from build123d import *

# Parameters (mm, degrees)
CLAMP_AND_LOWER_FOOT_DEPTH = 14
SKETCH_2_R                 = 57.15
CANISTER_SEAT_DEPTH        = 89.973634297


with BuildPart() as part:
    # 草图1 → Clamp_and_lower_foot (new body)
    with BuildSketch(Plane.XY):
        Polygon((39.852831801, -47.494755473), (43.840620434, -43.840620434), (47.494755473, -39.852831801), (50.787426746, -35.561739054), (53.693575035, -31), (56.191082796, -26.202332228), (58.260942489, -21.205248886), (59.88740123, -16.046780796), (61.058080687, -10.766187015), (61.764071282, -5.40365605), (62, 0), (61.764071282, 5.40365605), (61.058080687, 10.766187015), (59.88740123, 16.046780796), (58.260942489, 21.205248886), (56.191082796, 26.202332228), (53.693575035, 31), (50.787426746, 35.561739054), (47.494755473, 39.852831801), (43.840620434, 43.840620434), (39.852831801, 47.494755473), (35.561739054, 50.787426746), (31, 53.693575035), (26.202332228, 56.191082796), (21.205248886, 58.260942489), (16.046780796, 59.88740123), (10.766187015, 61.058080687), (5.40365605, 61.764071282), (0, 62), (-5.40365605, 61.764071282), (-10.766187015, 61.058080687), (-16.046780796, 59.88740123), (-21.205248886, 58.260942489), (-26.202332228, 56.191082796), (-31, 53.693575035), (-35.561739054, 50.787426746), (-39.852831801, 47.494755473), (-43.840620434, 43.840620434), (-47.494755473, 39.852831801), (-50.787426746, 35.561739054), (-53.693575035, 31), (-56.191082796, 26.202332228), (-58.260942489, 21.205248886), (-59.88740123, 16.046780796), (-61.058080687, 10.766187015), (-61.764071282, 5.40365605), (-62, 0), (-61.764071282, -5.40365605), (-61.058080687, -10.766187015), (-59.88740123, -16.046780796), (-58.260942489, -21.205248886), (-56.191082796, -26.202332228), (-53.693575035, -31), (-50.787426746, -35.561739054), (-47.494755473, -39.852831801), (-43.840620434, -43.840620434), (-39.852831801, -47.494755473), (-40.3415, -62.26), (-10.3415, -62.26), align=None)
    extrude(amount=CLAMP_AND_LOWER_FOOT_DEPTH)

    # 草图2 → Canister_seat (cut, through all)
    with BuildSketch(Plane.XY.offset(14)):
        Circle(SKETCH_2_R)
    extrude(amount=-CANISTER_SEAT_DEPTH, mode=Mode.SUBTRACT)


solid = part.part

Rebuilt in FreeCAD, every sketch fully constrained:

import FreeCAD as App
import Part
import Sketcher

V = App.Vector
Q = App.Units.Quantity

doc = App.newDocument("Part")
body = doc.addObject("PartDesign::Body", "Body")

sketch1 = body.newObject("Sketcher::SketchObject", "Sketch")
sketch1.AttachmentSupport = (doc.getObject("XY_Plane"), [""])
sketch1.MapMode = "FlatFace"
sketch1.addGeometry([
    Part.LineSegment(V(40, -47, 0), V(44, -44, 0)),
    Part.LineSegment(V(44, -44, 0), V(47, -40, 0)),
    Part.LineSegment(V(47, -40, 0), V(51, -36, 0)),
    Part.LineSegment(V(51, -36, 0), V(54, -31, 0)),
    Part.LineSegment(V(54, -31, 0), V(56, -26, 0)),
    Part.LineSegment(V(56, -26, 0), V(58, -21, 0)),
    Part.LineSegment(V(58, -21, 0), V(60, -16, 0)),
    Part.LineSegment(V(60, -16, 0), V(61, -11, 0)),
    Part.LineSegment(V(61, -11, 0), V(62, -5, 0)),
    Part.LineSegment(V(62, -5, 0), V(62, 0, 0)),
    Part.LineSegment(V(62, 0, 0), V(62, 5, 0)),
    Part.LineSegment(V(62, 5, 0), V(61, 11, 0)),
    Part.LineSegment(V(61, 11, 0), V(60, 16, 0)),
    Part.LineSegment(V(60, 16, 0), V(58, 21, 0)),
    Part.LineSegment(V(58, 21, 0), V(56, 26, 0)),
    Part.LineSegment(V(56, 26, 0), V(54, 31, 0)),
    Part.LineSegment(V(54, 31, 0), V(51, 36, 0)),
    Part.LineSegment(V(51, 36, 0), V(47, 40, 0)),
    Part.LineSegment(V(47, 40, 0), V(44, 44, 0)),
    Part.LineSegment(V(44, 44, 0), V(40, 47, 0)),
    Part.LineSegment(V(40, 47, 0), V(36, 51, 0)),
    Part.LineSegment(V(36, 51, 0), V(31, 54, 0)),
    Part.LineSegment(V(31, 54, 0), V(26, 56, 0)),
    Part.LineSegment(V(26, 56, 0), V(21, 58, 0)),
    Part.LineSegment(V(21, 58, 0), V(16, 60, 0)),
    Part.LineSegment(V(16, 60, 0), V(11, 61, 0)),
    Part.LineSegment(V(11, 61, 0), V(5, 62, 0)),
    Part.LineSegment(V(5, 62, 0), V(0, 62, 0)),
    Part.LineSegment(V(0, 62, 0), V(-5, 62, 0)),
    Part.LineSegment(V(-5, 62, 0), V(-11, 61, 0)),
    Part.LineSegment(V(-11, 61, 0), V(-16, 60, 0)),
    Part.LineSegment(V(-16, 60, 0), V(-21, 58, 0)),
    Part.LineSegment(V(-21, 58, 0), V(-26, 56, 0)),
    Part.LineSegment(V(-26, 56, 0), V(-31, 54, 0)),
    Part.LineSegment(V(-31, 54, 0), V(-36, 51, 0)),
    Part.LineSegment(V(-36, 51, 0), V(-40, 47, 0)),
    Part.LineSegment(V(-40, 47, 0), V(-44, 44, 0)),
    Part.LineSegment(V(-44, 44, 0), V(-47, 40, 0)),
    Part.LineSegment(V(-47, 40, 0), V(-51, 36, 0)),
    Part.LineSegment(V(-51, 36, 0), V(-54, 31, 0)),
    Part.LineSegment(V(-54, 31, 0), V(-56, 26, 0)),
    Part.LineSegment(V(-56, 26, 0), V(-58, 21, 0)),
    Part.LineSegment(V(-58, 21, 0), V(-60, 16, 0)),
    Part.LineSegment(V(-60, 16, 0), V(-61, 11, 0)),
    Part.LineSegment(V(-61, 11, 0), V(-62, 5, 0)),
    Part.LineSegment(V(-62, 5, 0), V(-62, 0, 0)),
    Part.LineSegment(V(-62, 0, 0), V(-62, -5, 0)),
    Part.LineSegment(V(-62, -5, 0), V(-61, -11, 0)),
    Part.LineSegment(V(-61, -11, 0), V(-60, -16, 0)),
    Part.LineSegment(V(-60, -16, 0), V(-58, -21, 0)),
    Part.LineSegment(V(-58, -21, 0), V(-56, -26, 0)),
    Part.LineSegment(V(-56, -26, 0), V(-54, -31, 0)),
    Part.LineSegment(V(-54, -31, 0), V(-51, -36, 0)),
    Part.LineSegment(V(-51, -36, 0), V(-47, -40, 0)),
    Part.LineSegment(V(-47, -40, 0), V(-44, -44, 0)),
    Part.LineSegment(V(-44, -44, 0), V(-40, -47, 0)),
    Part.LineSegment(V(-40, -47, 0), V(-40, -62, 0)),
    Part.LineSegment(V(-40, -62, 0), V(-10, -62, 0)),
    Part.LineSegment(V(-10, -62, 0), V(40, -47, 0)),
], False)
sketch1.addConstraint([
    Sketcher.Constraint("Coincident", 0, 2, 1, 1),
    Sketcher.Constraint("Coincident", 1, 2, 2, 1),
    Sketcher.Constraint("Coincident", 2, 2, 3, 1),
    Sketcher.Constraint("Coincident", 3, 2, 4, 1),
    Sketcher.Constraint("Coincident", 4, 2, 5, 1),
    Sketcher.Constraint("Coincident", 5, 2, 6, 1),
    Sketcher.Constraint("Coincident", 6, 2, 7, 1),
    Sketcher.Constraint("Coincident", 7, 2, 8, 1),
    Sketcher.Constraint("Coincident", 8, 2, 9, 1),
    Sketcher.Constraint("Coincident", 9, 2, 10, 1),
    Sketcher.Constraint("Coincident", 10, 2, 11, 1),
    Sketcher.Constraint("Coincident", 11, 2, 12, 1),
    Sketcher.Constraint("Coincident", 12, 2, 13, 1),
    Sketcher.Constraint("Coincident", 13, 2, 14, 1),
    Sketcher.Constraint("Coincident", 14, 2, 15, 1),
    Sketcher.Constraint("Coincident", 15, 2, 16, 1),
    Sketcher.Constraint("Coincident", 16, 2, 17, 1),
    Sketcher.Constraint("Coincident", 17, 2, 18, 1),
    Sketcher.Constraint("Coincident", 18, 2, 19, 1),
    Sketcher.Constraint("Coincident", 19, 2, 20, 1),
    Sketcher.Constraint("Coincident", 20, 2, 21, 1),
    Sketcher.Constraint("Coincident", 21, 2, 22, 1),
    Sketcher.Constraint("Coincident", 22, 2, 23, 1),
    Sketcher.Constraint("Coincident", 23, 2, 24, 1),
    Sketcher.Constraint("Coincident", 24, 2, 25, 1),
    Sketcher.Constraint("Coincident", 25, 2, 26, 1),
    Sketcher.Constraint("Coincident", 26, 2, 27, 1),
    Sketcher.Constraint("Coincident", 27, 2, 28, 1),
    Sketcher.Constraint("Coincident", 28, 2, 29, 1),
    Sketcher.Constraint("Coincident", 29, 2, 30, 1),
    Sketcher.Constraint("Coincident", 30, 2, 31, 1),
    Sketcher.Constraint("Coincident", 31, 2, 32, 1),
    Sketcher.Constraint("Coincident", 32, 2, 33, 1),
    Sketcher.Constraint("Coincident", 33, 2, 34, 1),
    Sketcher.Constraint("Coincident", 34, 2, 35, 1),
    Sketcher.Constraint("Coincident", 35, 2, 36, 1),
    Sketcher.Constraint("Coincident", 36, 2, 37, 1),
    Sketcher.Constraint("Coincident", 37, 2, 38, 1),
    Sketcher.Constraint("Coincident", 38, 2, 39, 1),
    Sketcher.Constraint("Coincident", 39, 2, 40, 1),
    Sketcher.Constraint("Coincident", 40, 2, 41, 1),
    Sketcher.Constraint("Coincident", 41, 2, 42, 1),
    Sketcher.Constraint("Coincident", 42, 2, 43, 1),
    Sketcher.Constraint("Coincident", 43, 2, 44, 1),
    Sketcher.Constraint("Coincident", 44, 2, 45, 1),
    Sketcher.Constraint("Coincident", 45, 2, 46, 1),
    Sketcher.Constraint("Coincident", 46, 2, 47, 1),
    Sketcher.Constraint("Coincident", 47, 2, 48, 1),
    Sketcher.Constraint("Coincident", 48, 2, 49, 1),
    Sketcher.Constraint("Coincident", 49, 2, 50, 1),
    Sketcher.Constraint("Coincident", 50, 2, 51, 1),
    Sketcher.Constraint("Coincident", 51, 2, 52, 1),
    Sketcher.Constraint("Coincident", 52, 2, 53, 1),
    Sketcher.Constraint("Coincident", 53, 2, 54, 1),
    Sketcher.Constraint("Coincident", 54, 2, 55, 1),
    Sketcher.Constraint("Coincident", 55, 2, 56, 1),
    Sketcher.Constraint("Coincident", 56, 2, 57, 1),
    Sketcher.Constraint("Coincident", 57, 2, 58, 1),
    Sketcher.Constraint("Coincident", 58, 2, 0, 1),
    Sketcher.Constraint("Horizontal", 57),
    Sketcher.Constraint("Symmetric", 0, 2, 36, 2, -1, 1),
    Sketcher.Constraint("Symmetric", 1, 2, 37, 2, -1, 1),
    Sketcher.Constraint("Symmetric", 2, 2, 38, 2, -1, 1),
    Sketcher.Constraint("Symmetric", 3, 2, 39, 2, -1, 1),
    Sketcher.Constraint("Symmetric", 4, 2, 40, 2, -1, 1),
    Sketcher.Constraint("Symmetric", 5, 2, 41, 2, -1, 1),
    Sketcher.Constraint("Symmetric", 6, 2, 42, 2, -1, 1),
    Sketcher.Constraint("Symmetric", 7, 2, 43, 2, -1, 1),
    Sketcher.Constraint("Symmetric", 8, 2, 44, 2, -1, 1),
    Sketcher.Constraint("Symmetric", 9, 2, 45, 2, -1, 1),
    Sketcher.Constraint("Symmetric", 10, 2, 46, 2, -1, 1),
    Sketcher.Constraint("Symmetric", 11, 2, 47, 2, -1, 1),
    Sketcher.Constraint("Symmetric", 12, 2, 48, 2, -1, 1),
    Sketcher.Constraint("Symmetric", 13, 2, 49, 2, -1, 1),
    Sketcher.Constraint("Symmetric", 14, 2, 50, 2, -1, 1),
    Sketcher.Constraint("Symmetric", 15, 2, 51, 2, -1, 1),
    Sketcher.Constraint("Symmetric", 16, 2, 52, 2, -1, 1),
    Sketcher.Constraint("Symmetric", 17, 2, 53, 2, -1, 1),
    Sketcher.Constraint("Symmetric", 18, 2, 54, 2, -1, 1),
    Sketcher.Constraint("Symmetric", 19, 2, 55, 2, -1, 1),
    Sketcher.Constraint("Symmetric", 35, 2, 58, 2, -1, 1),
    Sketcher.Constraint("Symmetric", 26, 2, 28, 2, -2),
    Sketcher.Constraint("Symmetric", 25, 2, 29, 2, -2),
    Sketcher.Constraint("Symmetric", 24, 2, 30, 2, -2),
    Sketcher.Constraint("Symmetric", 23, 2, 31, 2, -2),
    Sketcher.Constraint("Symmetric", 22, 2, 32, 2, -2),
    Sketcher.Constraint("Symmetric", 21, 2, 33, 2, -2),
    Sketcher.Constraint("Symmetric", 20, 2, 34, 2, -2),
    Sketcher.Constraint("Symmetric", 19, 2, 35, 2, -2),
    Sketcher.Constraint("Symmetric", 18, 2, 36, 2, -2),
    Sketcher.Constraint("Symmetric", 17, 2, 37, 2, -2),
    Sketcher.Constraint("Symmetric", 16, 2, 38, 2, -2),
    Sketcher.Constraint("Symmetric", 15, 2, 39, 2, -2),
    Sketcher.Constraint("Symmetric", 14, 2, 40, 2, -2),
    Sketcher.Constraint("Symmetric", 13, 2, 41, 2, -2),
    Sketcher.Constraint("Symmetric", 12, 2, 42, 2, -2),
    Sketcher.Constraint("Symmetric", 11, 2, 43, 2, -2),
    Sketcher.Constraint("Symmetric", 10, 2, 44, 2, -2),
    Sketcher.Constraint("PointOnObject", 9, 2, -1),
    Sketcher.Constraint("PointOnObject", 27, 2, -2),
    Sketcher.Constraint("Perpendicular", 0, 18),
    Sketcher.Constraint("Perpendicular", 2, 20),
    Sketcher.Constraint("Perpendicular", 3, 21),
    Sketcher.Constraint("Perpendicular", 4, 22),
    Sketcher.Constraint("Perpendicular", 5, 23),
    Sketcher.Constraint("Perpendicular", 6, 24),
    Sketcher.Constraint("Perpendicular", 7, 25),
    Sketcher.Constraint("Perpendicular", 8, 26),
    Sketcher.Constraint("Perpendicular", 9, 27),
    Sketcher.Constraint("Equal", 0, 1),
    Sketcher.Constraint("Equal", 1, 2),
    Sketcher.Constraint("Equal", 2, 3),
    Sketcher.Constraint("Equal", 3, 4),
    Sketcher.Constraint("Equal", 4, 5),
    Sketcher.Constraint("Equal", 5, 6),
    Sketcher.Constraint("Equal", 6, 7),
    Sketcher.Constraint("Equal", 7, 8),
    Sketcher.Constraint("Equal", 8, 9),
    Sketcher.Constraint("Equal", 19, 20),
    Sketcher.Constraint("Equal", 20, 21),
    Sketcher.Constraint("Equal", 21, 22),
    Sketcher.Constraint("Equal", 22, 23),
    Sketcher.Constraint("Equal", 23, 24),
    Sketcher.Constraint("Equal", 24, 25),
    Sketcher.Constraint("Equal", 25, 26),
    Sketcher.Constraint("Equal", 26, 27),
    Sketcher.Constraint("DistanceX", 57, 1, 57, 2, Q("30 mm")),
    Sketcher.Constraint("DistanceY", 3, 2, -1, 1, Q("31 mm")),
    Sketcher.Constraint("DistanceX", -1, 1, 9, 2, Q("62 mm")),
    Sketcher.Constraint("Angle", 0, Q("42.5 deg")),
    Sketcher.Constraint("Angle", 2, Q("52.5 deg")),
    Sketcher.Constraint("Angle", 3, Q("57.5 deg")),
    Sketcher.Constraint("Angle", 4, Q("62.5 deg")),
    Sketcher.Constraint("Angle", 5, Q("67.5 deg")),
    Sketcher.Constraint("Angle", 6, Q("72.5 deg")),
    Sketcher.Constraint("Angle", 7, Q("77.5 deg")),
    Sketcher.Constraint("Angle", 8, Q("82.5 deg")),
    Sketcher.Constraint("DistanceY", 56, 2, -1, 1, Q("62.26 mm")),
    Sketcher.Constraint("DistanceX", 56, 2, -1, 1, Q("40.3415 mm")),
])
pad1 = body.newObject("PartDesign::Pad", "Pad")
pad1.Profile = sketch1
pad1.Length = 14

sketch2 = body.newObject("Sketcher::SketchObject", "Sketch001")
sketch2.AttachmentSupport = (doc.getObject("XY_Plane"), [""])
sketch2.MapMode = "FlatFace"
sketch2.AttachmentOffset = App.Placement(V(0, 0, 14), App.Rotation())
sketch2.addGeometry(Part.Circle(V(0, 0, 0), V(0, 0, 1), 57), False)
sketch2.addConstraint([
    Sketcher.Constraint("Coincident", 0, 3, -1, 1),
    Sketcher.Constraint("Diameter", 0, Q("114.3 mm")),
])
pocket1 = body.newObject("PartDesign::Pocket", "Pocket")
pocket1.Profile = sketch2
pocket1.Type = "ThroughAll"

doc.recompute()
